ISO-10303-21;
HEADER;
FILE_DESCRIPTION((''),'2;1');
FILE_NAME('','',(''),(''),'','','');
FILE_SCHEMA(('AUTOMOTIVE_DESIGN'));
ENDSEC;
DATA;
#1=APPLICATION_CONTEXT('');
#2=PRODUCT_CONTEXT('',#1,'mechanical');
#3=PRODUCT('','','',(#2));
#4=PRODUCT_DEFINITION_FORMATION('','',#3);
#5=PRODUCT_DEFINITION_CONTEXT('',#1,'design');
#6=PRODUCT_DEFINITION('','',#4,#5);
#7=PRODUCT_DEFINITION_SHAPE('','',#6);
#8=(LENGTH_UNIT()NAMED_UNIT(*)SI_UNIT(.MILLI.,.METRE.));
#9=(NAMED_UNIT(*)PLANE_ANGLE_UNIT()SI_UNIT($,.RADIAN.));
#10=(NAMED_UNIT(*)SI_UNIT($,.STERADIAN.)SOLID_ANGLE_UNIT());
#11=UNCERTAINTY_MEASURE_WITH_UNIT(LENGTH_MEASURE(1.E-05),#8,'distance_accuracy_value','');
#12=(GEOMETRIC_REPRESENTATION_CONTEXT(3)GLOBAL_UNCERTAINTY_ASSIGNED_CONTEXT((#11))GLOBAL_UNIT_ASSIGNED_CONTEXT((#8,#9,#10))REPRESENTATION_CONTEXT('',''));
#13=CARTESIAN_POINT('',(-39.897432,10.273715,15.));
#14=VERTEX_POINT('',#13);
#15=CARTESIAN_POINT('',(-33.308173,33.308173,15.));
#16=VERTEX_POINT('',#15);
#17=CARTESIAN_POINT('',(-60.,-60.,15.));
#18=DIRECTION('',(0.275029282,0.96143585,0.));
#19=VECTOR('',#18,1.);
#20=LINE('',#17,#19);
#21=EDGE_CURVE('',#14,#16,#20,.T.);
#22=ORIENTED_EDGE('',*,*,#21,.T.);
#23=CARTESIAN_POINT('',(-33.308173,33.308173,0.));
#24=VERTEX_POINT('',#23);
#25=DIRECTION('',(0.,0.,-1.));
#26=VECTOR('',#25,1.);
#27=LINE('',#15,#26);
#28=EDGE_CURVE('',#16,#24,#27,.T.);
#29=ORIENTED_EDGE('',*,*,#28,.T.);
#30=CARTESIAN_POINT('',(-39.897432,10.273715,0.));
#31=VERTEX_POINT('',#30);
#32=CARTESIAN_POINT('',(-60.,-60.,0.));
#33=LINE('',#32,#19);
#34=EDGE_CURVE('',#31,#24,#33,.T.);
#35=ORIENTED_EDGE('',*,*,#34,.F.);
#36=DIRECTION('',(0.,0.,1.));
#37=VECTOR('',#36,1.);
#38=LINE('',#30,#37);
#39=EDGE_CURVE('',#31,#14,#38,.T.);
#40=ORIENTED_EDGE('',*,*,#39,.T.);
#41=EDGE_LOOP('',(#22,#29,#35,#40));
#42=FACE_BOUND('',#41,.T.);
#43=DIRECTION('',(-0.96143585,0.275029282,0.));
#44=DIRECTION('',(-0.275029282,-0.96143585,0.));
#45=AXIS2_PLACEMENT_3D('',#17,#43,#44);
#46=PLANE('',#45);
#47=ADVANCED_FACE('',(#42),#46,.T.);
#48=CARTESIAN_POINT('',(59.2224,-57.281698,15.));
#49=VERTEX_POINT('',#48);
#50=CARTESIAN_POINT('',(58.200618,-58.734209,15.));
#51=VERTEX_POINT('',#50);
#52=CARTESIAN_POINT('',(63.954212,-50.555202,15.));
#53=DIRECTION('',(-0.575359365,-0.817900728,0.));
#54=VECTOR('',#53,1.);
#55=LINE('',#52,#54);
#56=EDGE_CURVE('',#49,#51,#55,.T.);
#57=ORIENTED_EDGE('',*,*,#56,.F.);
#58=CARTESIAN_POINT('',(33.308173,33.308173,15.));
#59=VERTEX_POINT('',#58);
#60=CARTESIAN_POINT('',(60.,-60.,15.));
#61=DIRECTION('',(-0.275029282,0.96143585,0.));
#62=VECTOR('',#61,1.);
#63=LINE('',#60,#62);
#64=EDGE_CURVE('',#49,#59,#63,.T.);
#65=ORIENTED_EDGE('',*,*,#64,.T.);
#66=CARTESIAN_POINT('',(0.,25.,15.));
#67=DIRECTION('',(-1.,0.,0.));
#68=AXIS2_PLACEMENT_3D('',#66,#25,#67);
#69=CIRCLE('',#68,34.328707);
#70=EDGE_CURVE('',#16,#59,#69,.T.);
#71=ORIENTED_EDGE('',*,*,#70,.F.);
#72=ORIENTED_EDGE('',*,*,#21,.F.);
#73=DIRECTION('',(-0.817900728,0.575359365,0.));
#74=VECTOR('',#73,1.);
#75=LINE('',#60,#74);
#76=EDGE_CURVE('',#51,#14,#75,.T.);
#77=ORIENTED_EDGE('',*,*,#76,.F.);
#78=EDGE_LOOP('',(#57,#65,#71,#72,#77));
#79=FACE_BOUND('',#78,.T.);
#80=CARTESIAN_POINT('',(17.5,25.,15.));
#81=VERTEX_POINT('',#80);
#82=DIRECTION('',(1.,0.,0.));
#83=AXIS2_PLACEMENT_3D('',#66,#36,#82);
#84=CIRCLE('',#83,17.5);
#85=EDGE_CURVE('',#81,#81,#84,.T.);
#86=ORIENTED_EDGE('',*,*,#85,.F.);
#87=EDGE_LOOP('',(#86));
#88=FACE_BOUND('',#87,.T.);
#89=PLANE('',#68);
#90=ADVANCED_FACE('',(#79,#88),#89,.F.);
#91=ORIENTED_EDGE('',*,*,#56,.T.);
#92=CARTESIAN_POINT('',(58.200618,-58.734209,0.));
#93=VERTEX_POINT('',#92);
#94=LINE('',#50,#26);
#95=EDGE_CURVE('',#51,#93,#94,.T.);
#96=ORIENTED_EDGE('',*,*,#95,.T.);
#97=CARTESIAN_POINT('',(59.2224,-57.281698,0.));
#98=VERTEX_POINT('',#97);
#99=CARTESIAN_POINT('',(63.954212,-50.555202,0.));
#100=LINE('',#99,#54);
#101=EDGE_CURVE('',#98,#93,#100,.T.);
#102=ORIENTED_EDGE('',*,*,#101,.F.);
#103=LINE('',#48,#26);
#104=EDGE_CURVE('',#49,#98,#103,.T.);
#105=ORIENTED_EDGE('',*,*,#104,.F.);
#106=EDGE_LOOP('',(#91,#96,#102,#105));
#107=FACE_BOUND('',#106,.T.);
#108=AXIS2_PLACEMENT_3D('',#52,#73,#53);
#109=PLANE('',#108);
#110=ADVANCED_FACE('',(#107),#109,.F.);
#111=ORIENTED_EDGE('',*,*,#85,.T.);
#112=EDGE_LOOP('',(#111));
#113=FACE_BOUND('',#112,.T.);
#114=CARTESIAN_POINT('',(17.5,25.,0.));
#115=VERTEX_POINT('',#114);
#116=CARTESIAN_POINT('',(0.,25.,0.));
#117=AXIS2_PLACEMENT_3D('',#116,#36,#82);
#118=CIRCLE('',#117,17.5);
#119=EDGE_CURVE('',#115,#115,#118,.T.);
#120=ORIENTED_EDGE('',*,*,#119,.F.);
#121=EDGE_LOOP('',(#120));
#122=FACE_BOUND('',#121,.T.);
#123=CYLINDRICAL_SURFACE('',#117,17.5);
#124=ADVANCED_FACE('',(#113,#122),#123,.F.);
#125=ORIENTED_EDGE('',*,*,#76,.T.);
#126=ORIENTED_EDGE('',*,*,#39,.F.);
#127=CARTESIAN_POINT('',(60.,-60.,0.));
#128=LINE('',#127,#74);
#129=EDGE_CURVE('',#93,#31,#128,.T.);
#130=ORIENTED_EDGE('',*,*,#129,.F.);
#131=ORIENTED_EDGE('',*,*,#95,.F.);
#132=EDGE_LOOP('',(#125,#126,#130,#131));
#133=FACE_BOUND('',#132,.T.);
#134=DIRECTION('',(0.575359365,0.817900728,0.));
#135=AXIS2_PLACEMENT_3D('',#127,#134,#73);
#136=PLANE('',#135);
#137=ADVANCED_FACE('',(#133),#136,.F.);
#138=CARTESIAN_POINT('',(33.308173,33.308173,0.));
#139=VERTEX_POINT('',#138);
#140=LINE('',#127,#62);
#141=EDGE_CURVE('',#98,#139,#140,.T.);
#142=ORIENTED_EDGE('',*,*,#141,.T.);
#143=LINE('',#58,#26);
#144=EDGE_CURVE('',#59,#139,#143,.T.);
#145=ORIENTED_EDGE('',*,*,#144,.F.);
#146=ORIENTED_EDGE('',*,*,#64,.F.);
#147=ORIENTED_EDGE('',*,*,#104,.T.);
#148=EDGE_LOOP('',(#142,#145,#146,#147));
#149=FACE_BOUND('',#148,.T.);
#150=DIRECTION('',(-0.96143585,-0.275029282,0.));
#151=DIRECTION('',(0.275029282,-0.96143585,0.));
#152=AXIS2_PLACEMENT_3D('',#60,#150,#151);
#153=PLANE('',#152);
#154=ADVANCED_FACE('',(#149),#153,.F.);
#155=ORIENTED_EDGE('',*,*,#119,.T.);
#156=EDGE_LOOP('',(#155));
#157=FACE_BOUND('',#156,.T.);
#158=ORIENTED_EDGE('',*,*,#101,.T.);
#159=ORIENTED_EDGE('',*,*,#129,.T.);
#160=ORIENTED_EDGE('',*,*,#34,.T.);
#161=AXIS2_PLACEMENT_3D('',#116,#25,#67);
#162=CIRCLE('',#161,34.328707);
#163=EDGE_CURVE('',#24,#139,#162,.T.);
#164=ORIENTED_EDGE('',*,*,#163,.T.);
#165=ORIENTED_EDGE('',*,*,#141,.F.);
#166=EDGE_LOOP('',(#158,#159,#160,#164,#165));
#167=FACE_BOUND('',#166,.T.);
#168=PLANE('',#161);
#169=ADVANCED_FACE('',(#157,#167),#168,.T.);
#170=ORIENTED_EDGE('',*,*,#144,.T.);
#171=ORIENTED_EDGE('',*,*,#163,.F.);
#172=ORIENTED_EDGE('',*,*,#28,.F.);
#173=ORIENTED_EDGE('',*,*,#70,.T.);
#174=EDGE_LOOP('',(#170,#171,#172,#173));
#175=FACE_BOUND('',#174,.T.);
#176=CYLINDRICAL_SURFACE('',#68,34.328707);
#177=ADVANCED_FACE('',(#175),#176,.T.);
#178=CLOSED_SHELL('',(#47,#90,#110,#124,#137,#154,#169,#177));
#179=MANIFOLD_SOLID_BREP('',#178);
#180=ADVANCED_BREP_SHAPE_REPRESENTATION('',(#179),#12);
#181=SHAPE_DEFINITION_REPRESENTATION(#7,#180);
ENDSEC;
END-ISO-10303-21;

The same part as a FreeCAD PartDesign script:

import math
import FreeCAD as App
import Part
import Sketcher
from FreeCAD import Vector


def add_polygon(sketch, points):
    """Adds a closed chain of lines whose ends are joined by coincident constraints."""
    first, n = sketch.GeometryCount, len(points)
    for a, b in zip(points, points[1:] + points[:1]):
        sketch.addGeometry(Part.LineSegment(App.Vector(*a, 0), App.Vector(*b, 0)), False)
    for i in range(n):
        sketch.addConstraint(Sketcher.Constraint("Coincident", first + i, 2, first + (i + 1) % n, 1))

doc = App.newDocument("Part")
body = doc.addObject("PartDesign::Body", "Body")

sketch1 = doc.addObject("Sketcher::SketchObject", "Sketch")
body.addObject(sketch1)
sketch1.AttachmentSupport = (doc.XY_Plane, [""])
sketch1.MapMode = "FlatFace"
sketch1.addGeometry([
    Part.LineSegment(Vector(-33.308173, 33.308173, 0), Vector(-60, -60, 0)),
    Part.LineSegment(Vector(-60, -60, 0), Vector(60, -60, 0)),
    Part.LineSegment(Vector(60, -60, 0), Vector(33.308173, 33.308173, 0)),
    Part.ArcOfCircle(Part.Circle(Vector(0, 25, 0), Vector(0, 0, 1), 34.328707), math.radians(14.005688), math.radians(165.994312)),
], False)
sketch1.addConstraint([
    Sketcher.Constraint("Coincident", 0, 2, 1, 1),
    Sketcher.Constraint("Coincident", 1, 2, 2, 1),
    Sketcher.Constraint("Coincident", 2, 2, 3, 1),
    Sketcher.Constraint("Coincident", 3, 2, 0, 1),
    Sketcher.Constraint("Horizontal", 1),
    Sketcher.Constraint("Symmetric", 2, 2, 3, 2, -2),
    Sketcher.Constraint("Equal", 0, 2),
    Sketcher.Constraint("DistanceX", 1, 1, 1, 2, 120.0),
    Sketcher.Constraint("DistanceY", -1, 1, 3, 3, 25.0),
    Sketcher.Constraint("DistanceY", 0, 2, -1, 1, 60.0),
    Sketcher.Constraint("Radius", 3, 34.328707),
    Sketcher.Constraint("Distance", 0, 97.050856),
])
pad1 = doc.addObject("PartDesign::Pad", "Pad")
body.addObject(pad1)
pad1.Profile = sketch1
pad1.Length = 15

sketch2 = doc.addObject("Sketcher::SketchObject", "Sketch001")
body.addObject(sketch2)
sketch2.AttachmentSupport = (doc.XY_Plane, [""])
sketch2.MapMode = "FlatFace"
sketch2.AttachmentOffset = App.Placement(Vector(0, 0, 15), App.Rotation())
sketch2.addGeometry(Part.Circle(Vector(0, 25, 0), Vector(0, 0, 1), 17.5), False)
sketch2.addConstraint([
    Sketcher.Constraint("PointOnObject", 0, 3, -2),
    Sketcher.Constraint("Diameter", 0, 35.0),
    Sketcher.Constraint("DistanceY", -1, 1, 0, 3, 25.0),
])
pocket1 = doc.addObject("PartDesign::Pocket", "Pocket")
body.addObject(pocket1)
pocket1.Profile = sketch2
pocket1.Type = "ThroughAll"

sketch3 = doc.addObject("Sketcher::SketchObject", "Sketch002")
body.addObject(sketch3)
sketch3.AttachmentSupport = (doc.XY_Plane, [""])
sketch3.MapMode = "FlatFace"
sketch3.AttachmentOffset = App.Placement(Vector(0, 0, 15), App.Rotation())
add_polygon(sketch3, [(60, -60), (-39.897432, 10.273715), (-60, -60)])
sketch3.addConstraint([
    Sketcher.Constraint("Horizontal", 2),
    Sketcher.Constraint("DistanceX", 2, 1, 2, 2, 120.0),
    Sketcher.Constraint("DistanceX", 1, 2, -1, 1, 60.0),
    Sketcher.Constraint("DistanceY", 1, 2, -1, 1, 60.0),
    Sketcher.Constraint("Distance", 0, 122.138823),
    Sketcher.Constraint("Distance", 1, 73.092464),
])
pocket2 = doc.addObject("PartDesign::Pocket", "Pocket001")
body.addObject(pocket2)
pocket2.Profile = sketch3
pocket2.Length = 15

sketch4 = doc.addObject("Sketcher::SketchObject", "Sketch003")
body.addObject(sketch4)
sketch4.Placement = App.Placement(Vector(-8.372907, -11.902485, 0), App.Rotation(Vector(0.817900728, -0.575359365, 0), Vector(0, 0, 1), Vector(-0.575359365, -0.817900728, 0), "ZXY"))
add_polygon(sketch4, [(81.395606, 15), (81.395606, 0), (83.595606, 0), (83.595606, 15)])
sketch4.addConstraint([
    Sketcher.Constraint("Vertical", 0),
    Sketcher.Constraint("Horizontal", 1),
    Sketcher.Constraint("Vertical", 2),
    Sketcher.Constraint("Horizontal", 3),
    Sketcher.Constraint("PointOnObject", 0, 2, -1),
    Sketcher.Constraint("DistanceY", 0, 2, 0, 1, 15.0),
    Sketcher.Constraint("DistanceX", 1, 1, 1, 2, 2.2),
    Sketcher.Constraint("DistanceX", -1, 1, 0, 2, 81.395606),
])
pocket3 = doc.addObject("PartDesign::Pocket", "Pocket002")
body.addObject(pocket3)
pocket3.Profile = sketch4
pocket3.Length = 10

doc.recompute()
